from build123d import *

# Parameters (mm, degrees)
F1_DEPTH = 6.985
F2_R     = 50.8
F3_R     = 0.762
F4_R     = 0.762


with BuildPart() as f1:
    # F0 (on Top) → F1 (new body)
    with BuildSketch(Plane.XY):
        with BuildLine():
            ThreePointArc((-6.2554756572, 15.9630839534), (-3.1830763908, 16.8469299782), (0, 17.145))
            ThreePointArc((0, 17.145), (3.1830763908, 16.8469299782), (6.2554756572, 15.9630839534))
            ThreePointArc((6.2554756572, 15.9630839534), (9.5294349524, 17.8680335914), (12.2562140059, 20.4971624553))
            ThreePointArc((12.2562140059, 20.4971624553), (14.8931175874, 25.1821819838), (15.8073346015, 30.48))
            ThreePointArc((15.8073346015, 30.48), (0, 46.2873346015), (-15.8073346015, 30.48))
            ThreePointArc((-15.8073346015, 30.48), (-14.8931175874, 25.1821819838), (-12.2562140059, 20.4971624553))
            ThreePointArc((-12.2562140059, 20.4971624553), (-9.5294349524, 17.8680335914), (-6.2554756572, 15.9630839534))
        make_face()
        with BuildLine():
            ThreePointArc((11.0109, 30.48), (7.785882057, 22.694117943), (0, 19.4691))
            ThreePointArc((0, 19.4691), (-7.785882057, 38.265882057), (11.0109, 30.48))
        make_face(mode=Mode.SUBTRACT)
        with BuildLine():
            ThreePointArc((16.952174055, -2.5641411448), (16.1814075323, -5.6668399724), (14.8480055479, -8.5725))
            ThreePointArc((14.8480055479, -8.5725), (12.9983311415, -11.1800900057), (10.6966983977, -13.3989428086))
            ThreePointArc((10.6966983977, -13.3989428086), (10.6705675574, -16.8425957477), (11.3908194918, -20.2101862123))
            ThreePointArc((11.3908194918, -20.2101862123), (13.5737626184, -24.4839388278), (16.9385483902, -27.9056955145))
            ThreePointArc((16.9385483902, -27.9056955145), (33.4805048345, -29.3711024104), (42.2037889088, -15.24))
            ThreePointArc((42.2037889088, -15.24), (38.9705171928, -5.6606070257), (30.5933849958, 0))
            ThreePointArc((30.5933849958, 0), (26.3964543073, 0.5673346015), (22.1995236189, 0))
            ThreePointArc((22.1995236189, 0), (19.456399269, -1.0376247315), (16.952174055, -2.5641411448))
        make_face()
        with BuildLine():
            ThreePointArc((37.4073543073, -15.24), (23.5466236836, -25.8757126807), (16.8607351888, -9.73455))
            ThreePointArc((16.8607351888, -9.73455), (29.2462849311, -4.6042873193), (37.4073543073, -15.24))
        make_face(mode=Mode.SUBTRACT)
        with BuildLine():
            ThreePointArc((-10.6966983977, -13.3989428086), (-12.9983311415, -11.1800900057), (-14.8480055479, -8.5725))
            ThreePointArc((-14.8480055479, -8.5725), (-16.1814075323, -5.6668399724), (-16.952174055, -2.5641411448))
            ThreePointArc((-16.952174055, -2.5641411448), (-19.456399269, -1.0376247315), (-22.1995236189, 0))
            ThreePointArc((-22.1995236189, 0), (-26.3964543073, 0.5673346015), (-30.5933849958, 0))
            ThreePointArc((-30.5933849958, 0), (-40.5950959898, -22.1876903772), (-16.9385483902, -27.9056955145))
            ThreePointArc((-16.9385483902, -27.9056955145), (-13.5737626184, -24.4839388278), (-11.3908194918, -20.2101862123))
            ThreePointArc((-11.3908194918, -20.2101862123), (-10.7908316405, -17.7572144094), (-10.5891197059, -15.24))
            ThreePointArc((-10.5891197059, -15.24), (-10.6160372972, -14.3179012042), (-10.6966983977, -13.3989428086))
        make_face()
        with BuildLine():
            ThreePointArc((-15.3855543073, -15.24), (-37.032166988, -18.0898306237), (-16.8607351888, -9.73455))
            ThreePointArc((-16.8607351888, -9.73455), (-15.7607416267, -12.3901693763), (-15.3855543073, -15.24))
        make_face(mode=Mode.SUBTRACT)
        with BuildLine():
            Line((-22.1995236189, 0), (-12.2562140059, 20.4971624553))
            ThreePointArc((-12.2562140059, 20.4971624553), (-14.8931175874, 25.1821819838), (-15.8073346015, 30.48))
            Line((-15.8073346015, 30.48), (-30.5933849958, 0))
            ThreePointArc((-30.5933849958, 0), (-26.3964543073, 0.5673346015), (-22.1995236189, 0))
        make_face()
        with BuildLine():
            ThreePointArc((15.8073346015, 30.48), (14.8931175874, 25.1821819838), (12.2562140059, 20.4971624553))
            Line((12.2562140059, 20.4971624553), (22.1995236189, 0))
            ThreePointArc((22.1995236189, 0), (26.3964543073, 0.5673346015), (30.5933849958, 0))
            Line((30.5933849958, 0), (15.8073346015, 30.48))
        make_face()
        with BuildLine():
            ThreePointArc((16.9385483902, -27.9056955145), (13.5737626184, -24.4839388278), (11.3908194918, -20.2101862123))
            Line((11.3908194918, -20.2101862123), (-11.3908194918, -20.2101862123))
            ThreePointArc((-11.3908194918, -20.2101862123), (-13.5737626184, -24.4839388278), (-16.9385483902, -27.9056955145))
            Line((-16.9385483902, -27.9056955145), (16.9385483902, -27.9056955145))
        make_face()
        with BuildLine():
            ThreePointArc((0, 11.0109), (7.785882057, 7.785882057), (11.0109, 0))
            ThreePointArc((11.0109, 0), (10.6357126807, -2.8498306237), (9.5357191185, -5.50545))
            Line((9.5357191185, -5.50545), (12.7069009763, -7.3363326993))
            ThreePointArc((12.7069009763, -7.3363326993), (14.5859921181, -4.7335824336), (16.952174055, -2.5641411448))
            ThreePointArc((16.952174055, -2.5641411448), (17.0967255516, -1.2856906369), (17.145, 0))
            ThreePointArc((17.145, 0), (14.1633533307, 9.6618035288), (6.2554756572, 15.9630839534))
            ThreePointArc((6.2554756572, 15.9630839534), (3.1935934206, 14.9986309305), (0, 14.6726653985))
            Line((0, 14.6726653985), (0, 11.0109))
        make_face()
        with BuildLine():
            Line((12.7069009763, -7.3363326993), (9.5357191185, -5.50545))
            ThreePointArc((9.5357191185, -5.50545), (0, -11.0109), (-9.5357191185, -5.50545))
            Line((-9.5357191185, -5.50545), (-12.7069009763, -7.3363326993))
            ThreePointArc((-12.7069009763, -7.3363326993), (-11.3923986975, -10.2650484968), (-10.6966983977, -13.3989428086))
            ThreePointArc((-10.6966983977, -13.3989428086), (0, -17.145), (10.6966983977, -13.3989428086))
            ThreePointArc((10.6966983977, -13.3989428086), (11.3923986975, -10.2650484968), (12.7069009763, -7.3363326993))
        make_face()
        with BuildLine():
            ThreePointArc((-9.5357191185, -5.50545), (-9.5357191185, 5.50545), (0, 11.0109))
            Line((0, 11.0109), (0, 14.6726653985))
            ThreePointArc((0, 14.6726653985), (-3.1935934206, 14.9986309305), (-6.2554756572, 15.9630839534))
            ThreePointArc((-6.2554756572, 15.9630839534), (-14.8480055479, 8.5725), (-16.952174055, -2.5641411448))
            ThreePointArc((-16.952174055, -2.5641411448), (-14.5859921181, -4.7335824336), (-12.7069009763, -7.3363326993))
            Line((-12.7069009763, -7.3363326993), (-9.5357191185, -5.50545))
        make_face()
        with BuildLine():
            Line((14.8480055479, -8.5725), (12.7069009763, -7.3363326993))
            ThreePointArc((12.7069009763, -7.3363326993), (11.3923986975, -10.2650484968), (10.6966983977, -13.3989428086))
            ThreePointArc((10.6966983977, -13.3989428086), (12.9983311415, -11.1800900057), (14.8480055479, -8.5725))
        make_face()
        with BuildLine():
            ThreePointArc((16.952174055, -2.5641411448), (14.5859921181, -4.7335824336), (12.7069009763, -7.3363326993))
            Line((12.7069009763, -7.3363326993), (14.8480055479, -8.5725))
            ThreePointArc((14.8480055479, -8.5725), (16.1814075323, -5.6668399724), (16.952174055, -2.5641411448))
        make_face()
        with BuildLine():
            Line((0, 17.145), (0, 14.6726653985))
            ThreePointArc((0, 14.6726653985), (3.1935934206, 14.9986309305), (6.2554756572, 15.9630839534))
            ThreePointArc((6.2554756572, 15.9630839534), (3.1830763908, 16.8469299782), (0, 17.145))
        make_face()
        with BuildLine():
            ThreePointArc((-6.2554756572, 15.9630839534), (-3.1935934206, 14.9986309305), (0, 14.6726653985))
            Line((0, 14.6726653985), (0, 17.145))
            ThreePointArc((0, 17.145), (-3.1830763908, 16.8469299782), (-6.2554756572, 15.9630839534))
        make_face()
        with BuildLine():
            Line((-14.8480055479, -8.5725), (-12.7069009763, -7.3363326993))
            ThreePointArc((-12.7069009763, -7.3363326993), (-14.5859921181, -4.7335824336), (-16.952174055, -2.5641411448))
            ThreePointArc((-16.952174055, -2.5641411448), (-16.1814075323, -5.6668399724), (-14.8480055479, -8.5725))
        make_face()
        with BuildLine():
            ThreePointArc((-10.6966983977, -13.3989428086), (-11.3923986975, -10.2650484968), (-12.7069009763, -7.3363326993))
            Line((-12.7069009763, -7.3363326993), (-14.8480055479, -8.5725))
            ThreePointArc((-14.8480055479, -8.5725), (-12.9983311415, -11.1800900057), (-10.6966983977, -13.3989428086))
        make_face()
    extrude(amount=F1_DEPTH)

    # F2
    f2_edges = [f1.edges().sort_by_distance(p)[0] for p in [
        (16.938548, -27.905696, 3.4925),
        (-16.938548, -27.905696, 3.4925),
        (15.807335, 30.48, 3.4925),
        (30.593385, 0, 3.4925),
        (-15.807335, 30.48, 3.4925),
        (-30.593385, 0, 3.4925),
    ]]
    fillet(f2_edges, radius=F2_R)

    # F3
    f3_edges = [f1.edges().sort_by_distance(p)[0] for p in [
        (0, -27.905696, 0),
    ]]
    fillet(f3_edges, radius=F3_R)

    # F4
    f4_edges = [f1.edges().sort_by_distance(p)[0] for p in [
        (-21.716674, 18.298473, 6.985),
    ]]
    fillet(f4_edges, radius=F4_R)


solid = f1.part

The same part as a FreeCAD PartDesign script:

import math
import FreeCAD as App
import Part
import Sketcher
Q = App.Units.Quantity


def edges_at(feature, points):
    """Names of the edges that pass closest to the given points."""
    edges = feature.Shape.Edges
    near = lambda p: min(range(len(edges)), key=lambda i: edges[i].distToShape(Part.Vertex(*p))[0])
    return sorted({f"Edge{near(p) + 1}" for p in points})

doc = App.newDocument("Part")
params = doc.addObject("Spreadsheet::Sheet", "Params")
for row, (alias, value) in enumerate([
    ("sketch1_radius", "0.675 in"),
    ("pad1_length", "0.275 in"),
    ("fillet_radius", "2 in"),
    ("fillet2_radius", "0.03 in"),
    ("fillet3_radius", "0.03 in"),
], start=1):
    params.set(f"A{row}", alias)
    params.set(f"B{row}", "=" + value)
    params.setAlias(f"B{row}", alias)

body = doc.addObject("PartDesign::Body", "Body")

# Sketch on XY plane
sketch1 = body.newObject("Sketcher::SketchObject", "Sketch")
sketch1.AttachmentSupport = (doc.getObject("XY_Plane"), [""])
sketch1.MapMode = "FlatFace"
sketch1.addGeometry(Part.ArcOfCircle(Part.Circle(App.Vector(26.396454, -15.24, 0), App.Vector(0, 0, 1), 15.807335), math.radians(-126.749949), math.radians(0)), False)
sketch1.addGeometry(Part.ArcOfCircle(Part.Circle(App.Vector(26.396454, -15.24, 0), App.Vector(0, 0, 1), 15.807335), math.radians(0), math.radians(74.603022)), False)
sketch1.addGeometry(Part.LineSegment(App.Vector(30.593385, 0, 0), App.Vector(15.807335, 30.48, 0)), False)
sketch1.addGeometry(Part.ArcOfCircle(Part.Circle(App.Vector(0, 30.48, 0), App.Vector(0, 0, 1), 15.807335), math.radians(0), math.radians(180)), False)
sketch1.addGeometry(Part.LineSegment(App.Vector(-15.807335, 30.48, 0), App.Vector(-30.593385, 0, 0)), False)
sketch1.addGeometry(Part.ArcOfCircle(Part.Circle(App.Vector(-26.396454, -15.24, 0), App.Vector(0, 0, 1), 15.807335), math.radians(105.396978), math.radians(306.749949)), False)
sketch1.addGeometry(Part.LineSegment(App.Vector(-16.938548, -27.905696, 0), App.Vector(16.938548, -27.905696, 0)), False)
sketch1.addGeometry(Part.ArcOfCircle(Part.Circle(App.Vector(-26.396454, -15.24, 0), App.Vector(0, 0, 1), 11.0109), math.radians(30), math.radians(360)), False)
sketch1.addGeometry(Part.ArcOfCircle(Part.Circle(App.Vector(-26.396454, -15.24, 0), App.Vector(0, 0, 1), 11.0109), math.radians(0), math.radians(30)), False)
sketch1.addGeometry(Part.ArcOfCircle(Part.Circle(App.Vector(-26.396454, -15.24, 0), App.Vector(0, 0, 1), 15.807335), math.radians(0), math.radians(6.688335)), False)
sketch1.addGeometry(Part.ArcOfCircle(Part.Circle(App.Vector(0, 0, 0), App.Vector(0, 0, 1), 17.145), math.radians(-128.601209), math.radians(-51.398791)), False)
sketch1.addGeometry(Part.ArcOfCircle(Part.Circle(App.Vector(26.396454, -15.24, 0), App.Vector(0, 0, 1), 15.807335), math.radians(173.311665), math.radians(198.325972)), False)
sketch1.addGeometry(Part.LineSegment(App.Vector(11.390819, -20.210186, 0), App.Vector(-11.390819, -20.210186, 0)), False)
sketch1.addGeometry(Part.ArcOfCircle(Part.Circle(App.Vector(-26.396454, -15.24, 0), App.Vector(0, 0, 1), 15.807335), math.radians(-18.325972), math.radians(0)), False)
sketch1.addGeometry(Part.ArcOfCircle(Part.Circle(App.Vector(26.396454, -15.24, 0), App.Vector(0, 0, 1), 11.0109), math.radians(150), math.radians(360)), False)
sketch1.addGeometry(Part.ArcOfCircle(Part.Circle(App.Vector(26.396454, -15.24, 0), App.Vector(0, 0, 1), 11.0109), math.radians(0), math.radians(150)), False)
sketch1.addGeometry(Part.ArcOfCircle(Part.Circle(App.Vector(0, 0, 0), App.Vector(0, 0, 1), 11.0109), math.radians(0), math.radians(90)), False)
sketch1.addGeometry(Part.ArcOfCircle(Part.Circle(App.Vector(0, 0, 0), App.Vector(0, 0, 1), 11.0109), math.radians(-30), math.radians(0)), False)
sketch1.addGeometry(Part.ArcOfCircle(Part.Circle(App.Vector(0, 0, 0), App.Vector(0, 0, 1), 11.0109), math.radians(-150), math.radians(-30)), False)
sketch1.addGeometry(Part.ArcOfCircle(Part.Circle(App.Vector(0, 0, 0), App.Vector(0, 0, 1), 11.0109), math.radians(90), math.radians(210)), False)
sketch1.addGeometry(Part.ArcOfCircle(Part.Circle(App.Vector(0, 0, 0), App.Vector(0, 0, 1), 17.145), math.radians(111.398791), math.radians(188.601209)), False)
sketch1.addGeometry(Part.ArcOfCircle(Part.Circle(App.Vector(-26.396454, -15.24, 0), App.Vector(0, 0, 1), 15.807335), math.radians(53.311665), math.radians(74.603022)), False)
sketch1.addGeometry(Part.LineSegment(App.Vector(-22.199524, 0, 0), App.Vector(-12.256214, 20.497162, 0)), False)
sketch1.addGeometry(Part.ArcOfCircle(Part.Circle(App.Vector(0, 30.48, 0), App.Vector(0, 0, 1), 15.807335), math.radians(-140.836759), math.radians(-113.311665)), False)
sketch1.addGeometry(Part.ArcOfCircle(Part.Circle(App.Vector(0, 30.48, 0), App.Vector(0, 0, 1), 11.0109), math.radians(0), math.radians(270)), False)
sketch1.addGeometry(Part.ArcOfCircle(Part.Circle(App.Vector(0, 30.48, 0), App.Vector(0, 0, 1), 11.0109), math.radians(-90), math.radians(0)), False)
sketch1.addGeometry(Part.ArcOfCircle(Part.Circle(App.Vector(0, 0, 0), App.Vector(0, 0, 1), 17.145), math.radians(0), math.radians(68.601209)), False)
sketch1.addGeometry(Part.ArcOfCircle(Part.Circle(App.Vector(0, 30.48, 0), App.Vector(0, 0, 1), 15.807335), math.radians(-66.688335), math.radians(-39.163241)), False)
sketch1.addGeometry(Part.LineSegment(App.Vector(12.256214, 20.497162, 0), App.Vector(22.199524, 0, 0)), False)
sketch1.addGeometry(Part.ArcOfCircle(Part.Circle(App.Vector(26.396454, -15.24, 0), App.Vector(0, 0, 1), 15.807335), math.radians(105.396978), math.radians(126.688335)), False)
sketch1.addGeometry(Part.ArcOfCircle(Part.Circle(App.Vector(0, 0, 0), App.Vector(0, 0, 1), 17.145), math.radians(-8.601209), math.radians(0)), False)
sketch1.addConstraint(Sketcher.Constraint("Tangent", 0, 2, 1, 1))
sketch1.addConstraint(Sketcher.Constraint("Coincident", 1, 2, 2, 1))
sketch1.addConstraint(Sketcher.Constraint("Coincident", 2, 2, 3, 1))
sketch1.addConstraint(Sketcher.Constraint("Coincident", 3, 2, 4, 1))
sketch1.addConstraint(Sketcher.Constraint("Coincident", 4, 2, 5, 1))
sketch1.addConstraint(Sketcher.Constraint("Coincident", 5, 2, 6, 1))
sketch1.addConstraint(Sketcher.Constraint("Coincident", 6, 2, 0, 1))
sketch1.addConstraint(Sketcher.Constraint("Tangent", 7, 1, 8, 2))
sketch1.addConstraint(Sketcher.Constraint("Coincident", 8, 1, 7, 2))
sketch1.addConstraint(Sketcher.Constraint("Coincident", 9, 2, 10, 1))
sketch1.addConstraint(Sketcher.Constraint("Coincident", 10, 2, 11, 1))
sketch1.addConstraint(Sketcher.Constraint("Coincident", 11, 2, 12, 1))
sketch1.addConstraint(Sketcher.Constraint("Coincident", 12, 2, 13, 1))
sketch1.addConstraint(Sketcher.Constraint("Tangent", 13, 2, 9, 1))
sketch1.addConstraint(Sketcher.Constraint("Tangent", 14, 1, 15, 2))
sketch1.addConstraint(Sketcher.Constraint("Coincident", 15, 1, 14, 2))
sketch1.addConstraint(Sketcher.Constraint("Tangent", 16, 1, 17, 2))
sketch1.addConstraint(Sketcher.Constraint("Tangent", 17, 1, 18, 2))
sketch1.addConstraint(Sketcher.Constraint("Tangent", 18, 1, 19, 2))
sketch1.addConstraint(Sketcher.Constraint("Tangent", 19, 1, 16, 2))
sketch1.addConstraint(Sketcher.Constraint("Coincident", 20, 2, 21, 1))
sketch1.addConstraint(Sketcher.Constraint("Coincident", 21, 2, 22, 1))
sketch1.addConstraint(Sketcher.Constraint("Coincident", 22, 2, 23, 1))
sketch1.addConstraint(Sketcher.Constraint("Coincident", 23, 2, 20, 1))
sketch1.addConstraint(Sketcher.Constraint("Tangent", 24, 1, 25, 2))
sketch1.addConstraint(Sketcher.Constraint("Coincident", 25, 1, 24, 2))
sketch1.addConstraint(Sketcher.Constraint("Coincident", 26, 2, 27, 1))
sketch1.addConstraint(Sketcher.Constraint("Coincident", 27, 2, 28, 1))
sketch1.addConstraint(Sketcher.Constraint("Coincident", 28, 2, 29, 1))
sketch1.addConstraint(Sketcher.Constraint("Coincident", 29, 2, 30, 1))
sketch1.addConstraint(Sketcher.Constraint("Tangent", 30, 2, 26, 1))
sketch1.addConstraint(Sketcher.Constraint("Horizontal", 6))
sketch1.addConstraint(Sketcher.Constraint("Horizontal", 12))
sketch1.addConstraint(Sketcher.Constraint("Coincident", 10, 3, -1, 1))
sketch1.addConstraint(Sketcher.Constraint("Coincident", 16, 3, -1, 1))
sketch1.addConstraint(Sketcher.Constraint("Coincident", 20, 3, -1, 1))
sketch1.addConstraint(Sketcher.Constraint("Coincident", 26, 3, -1, 1))
sketch1.addConstraint(Sketcher.Constraint("Coincident", 7, 3, 5, 3))
sketch1.addConstraint(Sketcher.Constraint("Coincident", 9, 3, 5, 3))
sketch1.addConstraint(Sketcher.Constraint("Coincident", 11, 3, 0, 3))
sketch1.addConstraint(Sketcher.Constraint("Coincident", 14, 3, 0, 3))
sketch1.addConstraint(Sketcher.Constraint("Coincident", 21, 3, 5, 3))
sketch1.addConstraint(Sketcher.Constraint("Coincident", 23, 3, 3, 3))
sketch1.addConstraint(Sketcher.Constraint("Coincident", 24, 3, 3, 3))
sketch1.addConstraint(Sketcher.Constraint("Coincident", 27, 3, 3, 3))
sketch1.addConstraint(Sketcher.Constraint("Coincident", 29, 3, 0, 3))
sketch1.addConstraint(Sketcher.Constraint("Equal", 0, 1))
sketch1.addConstraint(Sketcher.Constraint("Equal", 1, 3))
sketch1.addConstraint(Sketcher.Constraint("Equal", 3, 5))
sketch1.addConstraint(Sketcher.Constraint("Equal", 5, 9))
sketch1.addConstraint(Sketcher.Constraint("Equal", 9, 11))
sketch1.addConstraint(Sketcher.Constraint("Equal", 11, 13))
sketch1.addConstraint(Sketcher.Constraint("Equal", 8, 14))
sketch1.addConstraint(Sketcher.Constraint("Equal", 15, 16))
sketch1.addConstraint(Sketcher.Constraint("Equal", 16, 17))
sketch1.addConstraint(Sketcher.Constraint("Equal", 10, 20))
sketch1.addConstraint(Sketcher.Constraint("Equal", 13, 21))
sketch1.addConstraint(Sketcher.Constraint("Equal", 21, 23))
sketch1.addConstraint(Sketcher.Constraint("Equal", 19, 24))
sketch1.addConstraint(Sketcher.Constraint("Equal", 20, 26))
sketch1.addConstraint(Sketcher.Constraint("Equal", 23, 27))
sketch1.addConstraint(Sketcher.Constraint("Equal", 27, 29))
sketch1.addConstraint(Sketcher.Constraint("Equal", 26, 30))
sketch1.addConstraint(Sketcher.Constraint("Symmetric", 1, 2, 4, 2, -1, 1))
sketch1.addConstraint(Sketcher.Constraint("Symmetric", 21, 2, 28, 2, -1, 1))
sketch1.addConstraint(Sketcher.Constraint("Symmetric", 0, 3, 5, 3, -2))
sketch1.addConstraint(Sketcher.Constraint("Symmetric", 2, 2, 3, 2, -2))
sketch1.addConstraint(Sketcher.Constraint("PointOnObject", 16, 1, -1))
sketch1.addConstraint(Sketcher.Constraint("PointOnObject", 19, 1, -2))
sketch1.addConstraint(Sketcher.Constraint("PointOnObject", 25, 1, -2))
sketch1.addConstraint(Sketcher.Constraint("PointOnObject", 30, 2, -1))
sketch1.addConstraint(Sketcher.Constraint("Parallel", 4, 22))
sketch1.addConstraint(Sketcher.Constraint("Parallel", 2, 28))
sketch1.addConstraint(Sketcher.Constraint("Horizontal", 29, 3, 0, 2))
sketch1.addConstraint(Sketcher.Constraint("Horizontal", 27, 3, 2, 2))
sketch1.addConstraint(Sketcher.Constraint("Horizontal", 0, 2, 8, 1))
sketch1.addConstraint(Sketcher.Constraint("Horizontal", 8, 1, 13, 2))
sketch1.addConstraint(Sketcher.Constraint("Horizontal", 7, 1, 14, 1))
sketch1.addConstraint(Sketcher.Constraint("Horizontal", 13, 2, 15, 1))
sketch1.addConstraint(Sketcher.Constraint("Horizontal", 17, 1, 18, 1))
sketch1.addConstraint(Sketcher.Constraint("Horizontal", 3, 2, 24, 1))
sketch1.addConstraint(Sketcher.Constraint("Radius", 10, Q("0.675 in")))
sketch1.addConstraint(Sketcher.Constraint("DistanceY", 0, 3, -1, 1, Q("0.6 in")))
sketch1.addConstraint(Sketcher.Constraint("DistanceY", -1, 1, 3, 3, Q("1.2 in")))
sketch1.addConstraint(Sketcher.Constraint("Radius", 7, Q("0.4335 in")))
sketch1.addConstraint(Sketcher.Constraint("Radius", 0, Q("15.807335 mm")))
sketch1.addConstraint(Sketcher.Constraint("DistanceY", 14, 1, 17, 1, Q("0.1665 in")))
sketch1.addConstraint(Sketcher.Constraint("DistanceX", 20, 2, 7, 1, Q("0.0036 in")))
sketch1.addConstraint(Sketcher.Constraint("DistanceX", 12, 2, 12, 1, Q("22.781639 mm")))
sketch1.addConstraint(Sketcher.Constraint("DistanceX", 9, 2, -1, 1, Q("10.696698 mm")))
sketch1.addConstraint(Sketcher.Constraint("DistanceX", 6, 1, 6, 2, Q("33.877097 mm")))
sketch1.setExpression("Constraints[81]", "Params.sketch1_radius")
pad1 = body.newObject("PartDesign::Pad", "Pad")
pad1.Profile = sketch1
pad1.setExpression("Length", "Params.pad1_length")
doc.recompute()

fillet = body.newObject("PartDesign::Fillet", "Fillet")
fillet.Base = (pad1, edges_at(pad1, [
    (16.939, -27.906, 3.493),
    (-16.939, -27.906, 3.493),
    (15.807, 30.48, 3.493),
    (30.593, 0, 3.493),
    (-15.807, 30.48, 3.493),
    (-30.593, 0, 3.493),
]))
fillet.setExpression("Radius", "Params.fillet_radius")
doc.recompute()

fillet2 = body.newObject("PartDesign::Fillet", "Fillet001")
fillet2.Base = (fillet, edges_at(fillet, [(0, -27.906, 0)]))
fillet2.setExpression("Radius", "Params.fillet2_radius")
doc.recompute()

fillet3 = body.newObject("PartDesign::Fillet", "Fillet002")
fillet3.Base = (fillet2, edges_at(fillet2, [(-21.717, 18.298, 6.985)]))
fillet3.setExpression("Radius", "Params.fillet3_radius")

doc.recompute()
